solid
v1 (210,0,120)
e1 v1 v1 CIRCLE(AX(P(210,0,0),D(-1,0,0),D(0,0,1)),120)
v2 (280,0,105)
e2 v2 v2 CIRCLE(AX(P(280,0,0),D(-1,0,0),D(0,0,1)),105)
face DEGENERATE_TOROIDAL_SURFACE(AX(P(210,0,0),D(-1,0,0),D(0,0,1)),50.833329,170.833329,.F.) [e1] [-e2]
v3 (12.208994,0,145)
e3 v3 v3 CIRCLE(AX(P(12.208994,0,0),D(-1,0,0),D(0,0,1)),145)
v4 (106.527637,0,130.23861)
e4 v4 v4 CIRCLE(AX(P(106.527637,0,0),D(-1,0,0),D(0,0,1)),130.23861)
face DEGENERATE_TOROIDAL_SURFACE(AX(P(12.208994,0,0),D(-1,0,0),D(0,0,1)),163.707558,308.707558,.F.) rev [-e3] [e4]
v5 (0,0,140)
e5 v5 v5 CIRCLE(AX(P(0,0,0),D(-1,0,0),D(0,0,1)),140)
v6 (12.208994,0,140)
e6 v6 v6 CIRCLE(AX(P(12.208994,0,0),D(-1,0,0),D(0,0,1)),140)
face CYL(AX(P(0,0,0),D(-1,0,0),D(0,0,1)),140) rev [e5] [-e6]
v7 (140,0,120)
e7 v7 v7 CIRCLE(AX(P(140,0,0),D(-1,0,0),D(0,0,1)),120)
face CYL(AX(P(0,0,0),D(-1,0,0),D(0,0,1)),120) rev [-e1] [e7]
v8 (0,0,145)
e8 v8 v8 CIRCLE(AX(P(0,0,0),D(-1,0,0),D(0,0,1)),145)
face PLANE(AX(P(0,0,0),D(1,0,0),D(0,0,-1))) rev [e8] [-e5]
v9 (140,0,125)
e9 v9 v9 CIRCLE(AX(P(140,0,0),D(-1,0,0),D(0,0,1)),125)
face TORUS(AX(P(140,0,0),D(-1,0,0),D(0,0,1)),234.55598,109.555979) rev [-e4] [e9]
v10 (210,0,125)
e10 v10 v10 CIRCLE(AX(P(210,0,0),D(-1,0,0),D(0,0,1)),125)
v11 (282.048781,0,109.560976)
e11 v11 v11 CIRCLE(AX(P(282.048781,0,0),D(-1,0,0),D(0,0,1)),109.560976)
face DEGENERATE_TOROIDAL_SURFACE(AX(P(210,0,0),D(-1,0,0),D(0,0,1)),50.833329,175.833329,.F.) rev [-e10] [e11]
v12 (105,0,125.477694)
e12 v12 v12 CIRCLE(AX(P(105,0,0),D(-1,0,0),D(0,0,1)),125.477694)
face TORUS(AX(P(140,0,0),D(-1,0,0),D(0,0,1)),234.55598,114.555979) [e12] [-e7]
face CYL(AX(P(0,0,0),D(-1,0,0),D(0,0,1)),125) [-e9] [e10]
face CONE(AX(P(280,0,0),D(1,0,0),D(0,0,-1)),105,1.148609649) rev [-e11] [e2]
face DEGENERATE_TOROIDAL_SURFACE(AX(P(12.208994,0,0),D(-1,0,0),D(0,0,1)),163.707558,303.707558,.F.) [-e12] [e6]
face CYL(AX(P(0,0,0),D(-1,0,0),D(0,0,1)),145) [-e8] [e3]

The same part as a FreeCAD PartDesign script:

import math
import FreeCAD as App
import Part
import Sketcher

V = App.Vector

doc = App.newDocument("Part")
params = doc.addObject("Spreadsheet::Sheet", "Params")
for row, (alias, value) in enumerate([
    ("sketch1_width", "70 mm"),
    ("sketch1_height", "5 mm"),
    ("revolution_angle", "360 deg"),
], start=1):
    params.set(f"A{row}", alias)
    params.set(f"B{row}", "=" + value)
    params.setAlias(f"B{row}", alias)

body = doc.addObject("PartDesign::Body", "Body")

# Sketch on XY plane
sketch1 = doc.addObject("Sketcher::SketchObject", "Sketch")
body.addObject(sketch1)
sketch1.AttachmentSupport = (doc.XY_Plane, [""])
sketch1.MapMode = "FlatFace"
sketch1.addGeometry([
    Part.ArcOfCircle(Part.Circle(V(210, -50.833329, 0), V(0, 0, 1), 175.833329), math.radians(65.810485), math.radians(90)),  # 0
    Part.LineSegment(V(210, 125, 0), V(140, 125, 0)),  # 1
    Part.ArcOfCircle(Part.Circle(V(140, 234.55598, 0), V(0, 0, 1), 109.555979), math.radians(-107.789901), math.radians(-90)),  # 2
    Part.ArcOfCircle(Part.Circle(V(12.208994, -163.707558, 0), V(0, 0, 1), 308.707558), math.radians(72.210099), math.radians(90)),  # 3
    Part.LineSegment(V(12.208994, 145, 0), V(0, 145, 0)),  # 4
    Part.LineSegment(V(0, 145, 0), V(0, 140, 0)),  # 5
    Part.LineSegment(V(0, 140, 0), V(12.208994, 140, 0)),  # 6
    Part.ArcOfCircle(Part.Circle(V(12.208994, -163.707558, 0), V(0, 0, 1), 303.707558), math.radians(72.210099), math.radians(90)),  # 7
    Part.ArcOfCircle(Part.Circle(V(140, 234.55598, 0), V(0, 0, 1), 114.555979), math.radians(-107.789901), math.radians(-90)),  # 8
    Part.LineSegment(V(140, 120, 0), V(210, 120, 0)),  # 9
    Part.ArcOfCircle(Part.Circle(V(210, -50.833329, 0), V(0, 0, 1), 170.833329), math.radians(65.810485), math.radians(90)),  # 10
    Part.LineSegment(V(280, 105, 0), V(282.048781, 109.560976, 0)),  # 11
], False)
sketch1.addConstraint([
    Sketcher.Constraint("Tangent", 0, 2, 1, 1),
    Sketcher.Constraint("Tangent", 1, 2, 2, 2),
    Sketcher.Constraint("Tangent", 2, 1, 3, 1),
    Sketcher.Constraint("Tangent", 3, 2, 4, 1),
    Sketcher.Constraint("Coincident", 4, 2, 5, 1),
    Sketcher.Constraint("Coincident", 5, 2, 6, 1),
    Sketcher.Constraint("Tangent", 6, 2, 7, 2),
    Sketcher.Constraint("Tangent", 7, 1, 8, 1),
    Sketcher.Constraint("Tangent", 8, 2, 9, 1),
    Sketcher.Constraint("Tangent", 9, 2, 10, 2),
    Sketcher.Constraint("Coincident", 10, 1, 11, 1),
    Sketcher.Constraint("Coincident", 11, 2, 0, 1),
    Sketcher.Constraint("Horizontal", 1),
    Sketcher.Constraint("Horizontal", 4),
    Sketcher.Constraint("Vertical", 5),
    Sketcher.Constraint("Horizontal", 6),
    Sketcher.Constraint("Horizontal", 9),
    Sketcher.Constraint("Coincident", 7, 3, 3, 3),
    Sketcher.Constraint("Coincident", 8, 3, 2, 3),
    Sketcher.Constraint("Coincident", 10, 3, 0, 3),
    Sketcher.Constraint("PointOnObject", 4, 2, -2),
    Sketcher.Constraint("DistanceX", 1, 2, 1, 1, 70.0),
    Sketcher.Constraint("DistanceY", 5, 2, 5, 1, 5.0),
    Sketcher.Constraint("DistanceX", -1, 1, 0, 3, 210.0),
    Sketcher.Constraint("DistanceY", -1, 1, 0, 2, 125.0),
    Sketcher.Constraint("DistanceY", -1, 1, 3, 2, 145.0),
    Sketcher.Constraint("DistanceX", -1, 1, 10, 1, 280.0),
    Sketcher.Constraint("Radius", 0, 175.833329),
    Sketcher.Constraint("Radius", 2, 109.555979),
    Sketcher.Constraint("Radius", 3, 308.707558),
    Sketcher.Constraint("DistanceX", -1, 1, 11, 2, 282.048781),
])
sketch1.setExpression("Constraints[21]", "Params.sketch1_width")
sketch1.setExpression("Constraints[22]", "Params.sketch1_height")
revolution = doc.addObject("PartDesign::Revolution", "Revolution")
body.addObject(revolution)
revolution.Profile = sketch1
revolution.ReferenceAxis = (sketch1, ["H_Axis"])
revolution.setExpression("Angle", "Params.revolution_angle")

doc.recompute()
